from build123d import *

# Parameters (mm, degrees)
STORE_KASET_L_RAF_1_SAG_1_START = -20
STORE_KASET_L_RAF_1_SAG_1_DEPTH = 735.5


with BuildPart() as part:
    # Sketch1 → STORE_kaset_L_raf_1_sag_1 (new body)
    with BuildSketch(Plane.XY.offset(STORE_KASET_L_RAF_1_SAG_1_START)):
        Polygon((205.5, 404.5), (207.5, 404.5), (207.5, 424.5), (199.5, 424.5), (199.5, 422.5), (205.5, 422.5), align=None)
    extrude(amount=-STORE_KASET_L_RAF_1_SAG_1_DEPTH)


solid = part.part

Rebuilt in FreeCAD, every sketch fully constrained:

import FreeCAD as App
import Part
import Sketcher
Q = App.Units.Quantity

doc = App.newDocument("Part")
params = doc.addObject("Spreadsheet::Sheet", "Params")
for row, (alias, value) in enumerate([
    ("sketch1_width", "2 mm"),
    ("sketch1_width2", "8 mm"),
    ("sketch1_height", "20 mm"),
    ("pad1_length", "735.5 mm"),
], start=1):
    params.set(f"A{row}", alias)
    params.set(f"B{row}", "=" + value)
    params.setAlias(f"B{row}", alias)

body = doc.addObject("PartDesign::Body", "Body")

sketch1 = body.newObject("Sketcher::SketchObject", "Sketch")
sketch1.AttachmentSupport = (doc.getObject("XY_Plane"), [""])
sketch1.MapMode = "FlatFace"
sketch1.AttachmentOffset = App.Placement(App.Vector(0, 0, -20), App.Rotation())
sketch1.addGeometry([
    Part.LineSegment(App.Vector(205.5, 404.5, 0), App.Vector(207.5, 404.5, 0)),
    Part.LineSegment(App.Vector(207.5, 404.5, 0), App.Vector(207.5, 424.5, 0)),
    Part.LineSegment(App.Vector(207.5, 424.5, 0), App.Vector(199.5, 424.5, 0)),
    Part.LineSegment(App.Vector(199.5, 424.5, 0), App.Vector(199.5, 422.5, 0)),
    Part.LineSegment(App.Vector(199.5, 422.5, 0), App.Vector(205.5, 422.5, 0)),
    Part.LineSegment(App.Vector(205.5, 422.5, 0), App.Vector(205.5, 404.5, 0)),
], False)
sketch1.addConstraint([
    Sketcher.Constraint("Coincident", 0, 2, 1, 1),
    Sketcher.Constraint("Coincident", 1, 2, 2, 1),
    Sketcher.Constraint("Coincident", 2, 2, 3, 1),
    Sketcher.Constraint("Coincident", 3, 2, 4, 1),
    Sketcher.Constraint("Coincident", 4, 2, 5, 1),
    Sketcher.Constraint("Coincident", 5, 2, 0, 1),
    Sketcher.Constraint("Horizontal", 0),
    Sketcher.Constraint("Vertical", 1),
    Sketcher.Constraint("Horizontal", 2),
    Sketcher.Constraint("Vertical", 3),
    Sketcher.Constraint("Horizontal", 4),
    Sketcher.Constraint("Vertical", 5),
    Sketcher.Constraint("Equal", 0, 3),
    Sketcher.Constraint("DistanceX", 0, 1, 0, 2, Q("2 mm")),
    Sketcher.Constraint("DistanceX", 2, 2, 2, 1, Q("8 mm")),
    Sketcher.Constraint("DistanceY", 1, 1, 1, 2, Q("20 mm")),
    Sketcher.Constraint("DistanceX", -1, 1, 0, 2, Q("207.5 mm")),
    Sketcher.Constraint("DistanceY", -1, 1, 0, 2, Q("404.5 mm")),
])
sketch1.setExpression("Constraints[13]", "Params.sketch1_width")
sketch1.setExpression("Constraints[14]", "Params.sketch1_width2")
sketch1.setExpression("Constraints[15]", "Params.sketch1_height")
pad1 = body.newObject("PartDesign::Pad", "Pad")
pad1.Profile = sketch1
pad1.setExpression("Length", "Params.pad1_length")
pad1.Reversed = True

doc.recompute()
